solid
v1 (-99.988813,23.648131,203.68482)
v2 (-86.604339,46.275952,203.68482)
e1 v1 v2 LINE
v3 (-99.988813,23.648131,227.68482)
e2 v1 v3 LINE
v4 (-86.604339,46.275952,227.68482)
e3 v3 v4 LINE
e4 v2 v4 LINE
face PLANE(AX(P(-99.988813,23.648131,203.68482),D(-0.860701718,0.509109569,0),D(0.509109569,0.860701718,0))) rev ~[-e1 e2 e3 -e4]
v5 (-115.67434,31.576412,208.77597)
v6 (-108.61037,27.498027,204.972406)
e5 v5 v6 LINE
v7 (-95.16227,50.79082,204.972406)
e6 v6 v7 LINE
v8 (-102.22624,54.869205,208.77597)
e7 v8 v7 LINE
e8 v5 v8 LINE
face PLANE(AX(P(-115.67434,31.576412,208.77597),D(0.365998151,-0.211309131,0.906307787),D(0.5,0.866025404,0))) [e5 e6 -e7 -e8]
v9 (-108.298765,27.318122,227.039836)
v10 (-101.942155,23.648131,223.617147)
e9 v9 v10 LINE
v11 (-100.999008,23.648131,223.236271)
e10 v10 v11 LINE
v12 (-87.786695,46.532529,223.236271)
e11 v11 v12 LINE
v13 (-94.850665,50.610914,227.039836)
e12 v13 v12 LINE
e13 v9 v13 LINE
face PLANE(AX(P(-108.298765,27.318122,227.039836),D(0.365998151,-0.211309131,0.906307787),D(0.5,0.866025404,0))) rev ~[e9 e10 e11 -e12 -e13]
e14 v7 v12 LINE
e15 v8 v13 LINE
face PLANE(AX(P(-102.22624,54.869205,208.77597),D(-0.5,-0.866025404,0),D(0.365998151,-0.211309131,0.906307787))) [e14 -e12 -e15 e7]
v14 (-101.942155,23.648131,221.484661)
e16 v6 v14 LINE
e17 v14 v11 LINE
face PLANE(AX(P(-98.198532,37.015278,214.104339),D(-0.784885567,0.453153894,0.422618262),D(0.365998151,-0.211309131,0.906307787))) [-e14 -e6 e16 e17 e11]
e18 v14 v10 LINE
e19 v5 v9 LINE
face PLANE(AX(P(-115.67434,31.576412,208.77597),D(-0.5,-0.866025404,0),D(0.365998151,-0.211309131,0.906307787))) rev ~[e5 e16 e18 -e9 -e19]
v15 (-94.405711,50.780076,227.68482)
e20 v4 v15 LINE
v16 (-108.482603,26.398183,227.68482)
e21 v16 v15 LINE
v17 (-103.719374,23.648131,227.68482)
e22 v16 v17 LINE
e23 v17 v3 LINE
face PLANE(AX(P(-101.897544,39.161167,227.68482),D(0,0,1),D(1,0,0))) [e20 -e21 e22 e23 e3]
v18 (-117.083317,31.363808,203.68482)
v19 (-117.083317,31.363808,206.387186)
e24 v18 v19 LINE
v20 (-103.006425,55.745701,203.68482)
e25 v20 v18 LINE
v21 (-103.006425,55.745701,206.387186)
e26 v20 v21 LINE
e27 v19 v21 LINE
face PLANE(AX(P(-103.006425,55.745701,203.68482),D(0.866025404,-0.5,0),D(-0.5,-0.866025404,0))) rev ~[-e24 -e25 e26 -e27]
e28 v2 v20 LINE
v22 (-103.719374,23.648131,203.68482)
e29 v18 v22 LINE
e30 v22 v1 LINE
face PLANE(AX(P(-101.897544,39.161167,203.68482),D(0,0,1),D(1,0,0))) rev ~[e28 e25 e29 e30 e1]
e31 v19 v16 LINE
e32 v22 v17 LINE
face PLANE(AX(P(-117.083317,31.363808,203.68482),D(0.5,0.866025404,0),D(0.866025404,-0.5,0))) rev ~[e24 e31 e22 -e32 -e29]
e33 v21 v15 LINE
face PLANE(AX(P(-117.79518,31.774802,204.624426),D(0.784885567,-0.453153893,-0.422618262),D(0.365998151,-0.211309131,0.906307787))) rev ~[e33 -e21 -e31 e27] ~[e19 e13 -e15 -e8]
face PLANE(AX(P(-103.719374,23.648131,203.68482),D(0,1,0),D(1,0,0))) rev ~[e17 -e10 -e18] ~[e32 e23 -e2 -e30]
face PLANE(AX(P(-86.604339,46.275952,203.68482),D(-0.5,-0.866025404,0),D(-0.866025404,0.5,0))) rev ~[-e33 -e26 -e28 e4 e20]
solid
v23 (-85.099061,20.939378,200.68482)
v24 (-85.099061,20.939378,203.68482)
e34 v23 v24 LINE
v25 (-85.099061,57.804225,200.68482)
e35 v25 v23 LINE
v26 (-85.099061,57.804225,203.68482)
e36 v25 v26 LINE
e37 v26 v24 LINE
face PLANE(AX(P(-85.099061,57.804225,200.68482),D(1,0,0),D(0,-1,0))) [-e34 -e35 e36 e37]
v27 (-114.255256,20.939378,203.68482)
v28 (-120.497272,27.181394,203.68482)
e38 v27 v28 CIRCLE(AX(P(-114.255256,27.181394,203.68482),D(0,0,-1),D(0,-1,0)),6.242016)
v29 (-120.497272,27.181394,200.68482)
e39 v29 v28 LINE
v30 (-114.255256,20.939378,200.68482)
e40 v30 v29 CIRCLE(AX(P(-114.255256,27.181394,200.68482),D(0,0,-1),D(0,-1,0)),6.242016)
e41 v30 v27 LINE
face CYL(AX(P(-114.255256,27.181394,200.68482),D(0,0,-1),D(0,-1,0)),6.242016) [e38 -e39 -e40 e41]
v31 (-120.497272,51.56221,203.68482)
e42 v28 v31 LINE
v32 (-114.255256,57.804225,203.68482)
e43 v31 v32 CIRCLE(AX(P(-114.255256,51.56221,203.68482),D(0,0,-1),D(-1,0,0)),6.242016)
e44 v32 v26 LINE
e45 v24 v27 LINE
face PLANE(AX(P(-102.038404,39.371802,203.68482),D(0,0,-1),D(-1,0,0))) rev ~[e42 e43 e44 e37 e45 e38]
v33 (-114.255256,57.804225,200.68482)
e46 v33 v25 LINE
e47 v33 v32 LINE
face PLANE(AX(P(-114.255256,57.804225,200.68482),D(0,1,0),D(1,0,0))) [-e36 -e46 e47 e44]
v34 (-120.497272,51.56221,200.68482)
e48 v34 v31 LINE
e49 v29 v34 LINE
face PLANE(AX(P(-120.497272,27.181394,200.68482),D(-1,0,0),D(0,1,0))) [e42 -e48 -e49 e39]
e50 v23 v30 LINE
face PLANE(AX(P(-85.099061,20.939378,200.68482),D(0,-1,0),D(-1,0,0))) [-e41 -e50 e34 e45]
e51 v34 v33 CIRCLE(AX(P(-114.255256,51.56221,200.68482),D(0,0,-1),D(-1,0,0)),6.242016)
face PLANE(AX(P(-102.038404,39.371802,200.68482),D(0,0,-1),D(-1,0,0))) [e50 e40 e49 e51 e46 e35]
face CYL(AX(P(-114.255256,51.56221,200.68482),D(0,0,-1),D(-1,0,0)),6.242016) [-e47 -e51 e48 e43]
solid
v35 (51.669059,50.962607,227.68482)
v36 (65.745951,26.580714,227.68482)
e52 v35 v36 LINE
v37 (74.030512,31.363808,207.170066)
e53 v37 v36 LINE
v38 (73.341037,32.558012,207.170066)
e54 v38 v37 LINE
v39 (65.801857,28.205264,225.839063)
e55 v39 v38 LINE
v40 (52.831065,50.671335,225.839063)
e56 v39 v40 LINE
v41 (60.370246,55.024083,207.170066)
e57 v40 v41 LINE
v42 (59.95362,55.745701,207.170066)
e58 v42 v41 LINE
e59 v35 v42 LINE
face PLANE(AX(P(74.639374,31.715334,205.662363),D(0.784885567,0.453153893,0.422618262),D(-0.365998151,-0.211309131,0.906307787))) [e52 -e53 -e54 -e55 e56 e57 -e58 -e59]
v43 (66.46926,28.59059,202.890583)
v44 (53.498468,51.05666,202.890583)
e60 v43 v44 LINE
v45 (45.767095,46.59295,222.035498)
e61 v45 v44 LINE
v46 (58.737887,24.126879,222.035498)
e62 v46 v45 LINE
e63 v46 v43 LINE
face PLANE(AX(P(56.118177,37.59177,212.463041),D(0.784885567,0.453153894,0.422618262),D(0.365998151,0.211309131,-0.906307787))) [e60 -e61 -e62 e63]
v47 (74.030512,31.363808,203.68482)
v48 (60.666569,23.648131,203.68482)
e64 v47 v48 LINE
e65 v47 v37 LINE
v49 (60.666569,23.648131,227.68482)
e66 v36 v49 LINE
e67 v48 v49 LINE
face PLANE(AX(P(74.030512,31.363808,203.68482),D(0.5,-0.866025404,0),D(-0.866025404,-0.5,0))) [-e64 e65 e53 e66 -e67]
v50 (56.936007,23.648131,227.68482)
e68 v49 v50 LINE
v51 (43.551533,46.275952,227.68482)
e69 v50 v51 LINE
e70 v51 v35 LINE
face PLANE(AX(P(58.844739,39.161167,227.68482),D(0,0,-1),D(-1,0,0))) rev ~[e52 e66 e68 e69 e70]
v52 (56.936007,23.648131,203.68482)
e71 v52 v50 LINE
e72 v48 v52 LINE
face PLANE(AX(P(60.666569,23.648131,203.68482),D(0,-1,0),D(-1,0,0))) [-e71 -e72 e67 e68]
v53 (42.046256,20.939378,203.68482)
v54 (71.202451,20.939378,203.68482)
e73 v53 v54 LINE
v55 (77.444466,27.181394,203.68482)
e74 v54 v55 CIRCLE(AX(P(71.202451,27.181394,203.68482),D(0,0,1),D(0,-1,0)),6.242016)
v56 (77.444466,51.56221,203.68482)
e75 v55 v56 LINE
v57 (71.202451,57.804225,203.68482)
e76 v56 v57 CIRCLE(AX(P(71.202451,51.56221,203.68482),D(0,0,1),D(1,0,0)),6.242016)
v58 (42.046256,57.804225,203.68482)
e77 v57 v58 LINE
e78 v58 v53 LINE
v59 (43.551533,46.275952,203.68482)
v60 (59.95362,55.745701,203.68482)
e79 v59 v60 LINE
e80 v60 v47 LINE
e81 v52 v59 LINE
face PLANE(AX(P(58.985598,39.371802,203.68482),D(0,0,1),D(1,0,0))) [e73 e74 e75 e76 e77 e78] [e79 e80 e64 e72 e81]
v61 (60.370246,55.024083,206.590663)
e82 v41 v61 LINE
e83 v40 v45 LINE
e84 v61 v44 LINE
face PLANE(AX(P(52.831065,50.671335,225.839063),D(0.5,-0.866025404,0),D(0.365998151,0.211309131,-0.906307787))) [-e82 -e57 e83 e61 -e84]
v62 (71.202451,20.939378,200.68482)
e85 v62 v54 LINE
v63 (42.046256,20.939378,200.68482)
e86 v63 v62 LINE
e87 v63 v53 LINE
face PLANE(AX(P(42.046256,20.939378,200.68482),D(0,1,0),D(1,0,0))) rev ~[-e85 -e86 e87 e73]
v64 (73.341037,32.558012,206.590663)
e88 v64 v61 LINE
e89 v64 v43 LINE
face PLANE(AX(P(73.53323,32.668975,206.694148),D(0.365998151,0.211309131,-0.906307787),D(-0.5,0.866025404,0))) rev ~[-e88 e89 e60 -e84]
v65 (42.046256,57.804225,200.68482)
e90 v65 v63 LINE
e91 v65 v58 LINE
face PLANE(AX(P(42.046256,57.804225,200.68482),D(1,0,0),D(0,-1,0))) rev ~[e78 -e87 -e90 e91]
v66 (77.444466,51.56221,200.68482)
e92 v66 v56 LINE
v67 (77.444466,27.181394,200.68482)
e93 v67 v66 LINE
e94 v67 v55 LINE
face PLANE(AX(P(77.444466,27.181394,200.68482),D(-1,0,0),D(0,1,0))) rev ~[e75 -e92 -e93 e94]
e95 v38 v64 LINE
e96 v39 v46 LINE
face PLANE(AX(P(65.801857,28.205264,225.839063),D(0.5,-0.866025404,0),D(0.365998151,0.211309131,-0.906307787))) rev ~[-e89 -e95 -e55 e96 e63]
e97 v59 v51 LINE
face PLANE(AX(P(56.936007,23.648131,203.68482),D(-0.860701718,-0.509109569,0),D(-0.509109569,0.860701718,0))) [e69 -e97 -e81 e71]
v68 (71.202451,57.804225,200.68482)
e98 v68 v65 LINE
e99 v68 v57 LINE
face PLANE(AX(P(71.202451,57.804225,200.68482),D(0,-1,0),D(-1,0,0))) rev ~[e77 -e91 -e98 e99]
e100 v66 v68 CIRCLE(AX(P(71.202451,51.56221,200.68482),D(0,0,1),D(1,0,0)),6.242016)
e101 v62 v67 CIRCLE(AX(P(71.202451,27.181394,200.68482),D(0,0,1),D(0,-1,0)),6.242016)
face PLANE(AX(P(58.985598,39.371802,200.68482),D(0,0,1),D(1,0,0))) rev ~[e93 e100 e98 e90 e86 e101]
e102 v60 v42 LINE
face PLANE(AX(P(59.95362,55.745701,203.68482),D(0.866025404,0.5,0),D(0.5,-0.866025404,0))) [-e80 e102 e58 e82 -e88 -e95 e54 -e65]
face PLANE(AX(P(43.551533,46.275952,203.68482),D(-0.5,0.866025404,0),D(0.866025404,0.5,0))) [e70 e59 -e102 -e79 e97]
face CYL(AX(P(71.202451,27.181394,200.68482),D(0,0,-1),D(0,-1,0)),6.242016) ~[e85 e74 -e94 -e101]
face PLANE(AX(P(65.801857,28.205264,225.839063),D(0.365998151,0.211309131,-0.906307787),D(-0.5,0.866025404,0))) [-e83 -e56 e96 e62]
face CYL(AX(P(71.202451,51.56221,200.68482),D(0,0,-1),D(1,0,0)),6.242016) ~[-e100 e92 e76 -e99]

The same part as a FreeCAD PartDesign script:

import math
import FreeCAD as App
import Part
import Sketcher
from FreeCAD import Vector
Q = App.Units.Quantity

doc = App.newDocument("Part")
body = doc.addObject("PartDesign::Body", "Body")
body.AllowCompound = True

sketch1 = doc.addObject("Sketcher::SketchObject", "Sketch")
body.addObject(sketch1)
sketch1.AttachmentSupport = (doc.XY_Plane, [""])
sketch1.MapMode = "FlatFace"
sketch1.AttachmentOffset = App.Placement(Vector(0, 0, 200.68482), App.Rotation())
sketch1.addGeometry([
    Part.LineSegment(Vector(42, 21, 0), Vector(71, 21, 0)),
    Part.ArcOfCircle(Part.Circle(Vector(71, 27, 0), Vector(0, 0, 1), 6), math.radians(-90), math.radians(0)),
    Part.LineSegment(Vector(77, 27, 0), Vector(77, 52, 0)),
    Part.ArcOfCircle(Part.Circle(Vector(71, 52, 0), Vector(0, 0, 1), 6), math.radians(0), math.radians(90)),
    Part.LineSegment(Vector(71, 58, 0), Vector(42, 58, 0)),
    Part.LineSegment(Vector(42, 58, 0), Vector(42, 21, 0)),
], False)
sketch1.addConstraint([
    Sketcher.Constraint("Tangent", 0, 2, 1, 1),
    Sketcher.Constraint("Tangent", 1, 2, 2, 1),
    Sketcher.Constraint("Tangent", 2, 2, 3, 1),
    Sketcher.Constraint("Tangent", 3, 2, 4, 1),
    Sketcher.Constraint("Coincident", 4, 2, 5, 1),
    Sketcher.Constraint("Coincident", 5, 2, 0, 1),
    Sketcher.Constraint("Horizontal", 0),
    Sketcher.Constraint("Vertical", 2),
    Sketcher.Constraint("Horizontal", 4),
    Sketcher.Constraint("Vertical", 5),
    Sketcher.Constraint("Equal", 1, 3),
    Sketcher.Constraint("Radius", 1, 6.242016),
    Sketcher.Constraint("DistanceX", 0, 1, 0, 2, 29.156195),
    Sketcher.Constraint("DistanceY", 2, 1, 2, 2, 24.380815),
    Sketcher.Constraint("DistanceX", -1, 1, 1, 3, 71.202451),
    Sketcher.Constraint("DistanceY", -1, 1, 3, 3, 51.56221),
])
pad1 = doc.addObject("PartDesign::Pad", "Pad")
body.addObject(pad1)
pad1.Profile = sketch1
pad1.Length = 3

sketch2 = doc.addObject("Sketcher::SketchObject", "Sketch001")
body.addObject(sketch2)
sketch2.AttachmentSupport = (doc.XY_Plane, [""])
sketch2.MapMode = "FlatFace"
sketch2.AttachmentOffset = App.Placement(Vector(0, 0, 203.68482), App.Rotation())
sketch2.addGeometry([
    Part.LineSegment(Vector(74, 31.4, 0), Vector(60, 55.7, 0)),
    Part.LineSegment(Vector(60, 55.7, 0), Vector(43.6, 46.3, 0)),
    Part.LineSegment(Vector(43.6, 46.3, 0), Vector(56.9, 23.6, 0)),
    Part.LineSegment(Vector(56.9, 23.6, 0), Vector(60.7, 23.6, 0)),
    Part.LineSegment(Vector(60.7, 23.6, 0), Vector(74, 31.4, 0)),
    Part.LineSegment(Vector(-103, 55.7, 0), Vector(-117.1, 31.4, 0)),
    Part.LineSegment(Vector(-117.1, 31.4, 0), Vector(-103.7, 23.6, 0)),
    Part.LineSegment(Vector(-103.7, 23.6, 0), Vector(-100, 23.6, 0)),
    Part.LineSegment(Vector(-100, 23.6, 0), Vector(-86.6, 46.3, 0)),
    Part.LineSegment(Vector(-86.6, 46.3, 0), Vector(-103, 55.7, 0)),
], False)
sketch2.addConstraint([
    Sketcher.Constraint("Coincident", 0, 2, 1, 1),
    Sketcher.Constraint("Coincident", 1, 2, 2, 1),
    Sketcher.Constraint("Coincident", 2, 2, 3, 1),
    Sketcher.Constraint("Coincident", 3, 2, 4, 1),
    Sketcher.Constraint("Coincident", 4, 2, 0, 1),
    Sketcher.Constraint("Coincident", 5, 2, 6, 1),
    Sketcher.Constraint("Coincident", 6, 2, 7, 1),
    Sketcher.Constraint("Coincident", 7, 2, 8, 1),
    Sketcher.Constraint("Coincident", 8, 2, 9, 1),
    Sketcher.Constraint("Coincident", 9, 2, 5, 1),
    Sketcher.Constraint("Horizontal", 3),
    Sketcher.Constraint("Horizontal", 7),
    Sketcher.Constraint("Perpendicular", 0, 1),
    Sketcher.Constraint("Parallel", 1, 4),
    Sketcher.Constraint("Perpendicular", 5, 6),
    Sketcher.Constraint("Parallel", 6, 9),
    Sketcher.Constraint("Horizontal", 4, 2, 5, 2),
    Sketcher.Constraint("Horizontal", 3, 2, 6, 2),
    Sketcher.Constraint("Horizontal", 1, 2, 8, 2),
    Sketcher.Constraint("Horizontal", 0, 2, 9, 2),
    Sketcher.Constraint("Equal", 3, 7),
    Sketcher.Constraint("Equal", 0, 5),
    Sketcher.Constraint("Angle", 0, Q("120 deg")),
    Sketcher.Constraint("DistanceX", 3, 1, 3, 2, 3.730561),
    Sketcher.Constraint("DistanceY", -1, 1, 0, 2, 55.745701),
    Sketcher.Constraint("DistanceX", -1, 1, 0, 2, 59.95362),
    Sketcher.Constraint("DistanceY", -1, 1, 1, 2, 46.275952),
    Sketcher.Constraint("DistanceY", -1, 1, 2, 2, 23.648131),
    Sketcher.Constraint("DistanceX", -1, 1, 3, 2, 60.666569),
    Sketcher.Constraint("DistanceX", 8, 2, -1, 1, 86.604339),
])
pad2 = doc.addObject("PartDesign::Pad", "Pad001")
body.addObject(pad2)
pad2.Profile = sketch2
pad2.Length = 24

sketch3 = doc.addObject("Sketcher::SketchObject", "Sketch002")
body.addObject(sketch3)
sketch3.Placement = App.Placement(Vector(4.926701, -8.533296, 0), App.Rotation(Vector(-0.866025404, -0.5, 0), Vector(0, 0, -1), Vector(0.5, -0.866025404, 0), "ZXY"))
sketch3.addGeometry([
    Part.LineSegment(Vector(-69, -230, 0), Vector(-80, -206, 0)),
    Part.LineSegment(Vector(-80, -206, 0), Vector(-80, -230, 0)),
    Part.LineSegment(Vector(-80, -230, 0), Vector(-69, -230, 0)),
], False)
sketch3.addConstraint([
    Sketcher.Constraint("Coincident", 0, 2, 1, 1),
    Sketcher.Constraint("Coincident", 1, 2, 2, 1),
    Sketcher.Constraint("Coincident", 2, 2, 0, 1),
    Sketcher.Constraint("Vertical", 1),
    Sketcher.Constraint("Horizontal", 2),
    Sketcher.Constraint("Angle", 0, Q("115 deg")),
    Sketcher.Constraint("DistanceX", 2, 1, 2, 2, 11.480384),
    Sketcher.Constraint("DistanceX", 0, 2, -1, 1, 80.497261),
    Sketcher.Constraint("DistanceY", 0, 2, -1, 1, 205.662363),
])
pocket1 = doc.addObject("PartDesign::Pocket", "Pocket")
body.addObject(pocket1)
pocket1.Profile = sketch3
pocket1.Type = "ThroughAll"

sketch4 = doc.addObject("Sketcher::SketchObject", "Sketch003")
body.addObject(sketch4)
sketch4.Placement = App.Placement(Vector(-15.689902, -27.175708, 0), App.Rotation(Vector(0.866025404, -0.5, 0), Vector(0, 0, 1), Vector(-0.5, -0.866025404, 0), "ZXY"))
sketch4.addGeometry([
    Part.LineSegment(Vector(-118, 205, 0), Vector(-105, 233, 0)),
    Part.LineSegment(Vector(-105, 233, 0), Vector(-118, 233, 0)),
    Part.LineSegment(Vector(-118, 233, 0), Vector(-118, 205, 0)),
], False)
sketch4.addConstraint([
    Sketcher.Constraint("Coincident", 0, 2, 1, 1),
    Sketcher.Constraint("Coincident", 1, 2, 2, 1),
    Sketcher.Constraint("Coincident", 2, 2, 0, 1),
    Sketcher.Constraint("Horizontal", 1),
    Sketcher.Constraint("Vertical", 2),
    Sketcher.Constraint("Angle", 0, Q("65 deg")),
    Sketcher.Constraint("DistanceX", 1, 2, 1, 1, 13.21744),
    Sketcher.Constraint("DistanceX", 0, 2, -1, 1, 104.683579),
    Sketcher.Constraint("DistanceY", -1, 1, 0, 2, 232.969319),
])
pocket2 = doc.addObject("PartDesign::Pocket", "Pocket001")
body.addObject(pocket2)
pocket2.Profile = sketch4
pocket2.Length = 54

sketch5 = doc.addObject("Sketcher::SketchObject", "Sketch004")
body.addObject(sketch5)
sketch5.Placement = App.Placement(Vector(-151.743992, 87.609435, 81.705901), App.Rotation(Vector(0.365998151, -0.211309131, 0.906307787), Vector(0.500000001, 0.866025404, 0), Vector(-0.784885567, 0.453153894, 0.422618262), "ZXY"))
sketch5.addGeometry([
    Part.LineSegment(Vector(140, -4, 0), Vector(140, -30, 0)),
    Part.LineSegment(Vector(140, -30, 0), Vector(160, -30, 0)),
    Part.LineSegment(Vector(160, -30, 0), Vector(160, -4, 0)),
    Part.LineSegment(Vector(160, -4, 0), Vector(140, -4, 0)),
], False)
sketch5.addConstraint([
    Sketcher.Constraint("Coincident", 0, 2, 1, 1),
    Sketcher.Constraint("Coincident", 1, 2, 2, 1),
    Sketcher.Constraint("Coincident", 2, 2, 3, 1),
    Sketcher.Constraint("Coincident", 3, 2, 0, 1),
    Sketcher.Constraint("Vertical", 0),
    Sketcher.Constraint("Horizontal", 1),
    Sketcher.Constraint("Vertical", 2),
    Sketcher.Constraint("Horizontal", 3),
    Sketcher.Constraint("DistanceY", 0, 2, 0, 1, 26.8962),
    Sketcher.Constraint("DistanceX", 1, 1, 1, 2, 20.151946),
    Sketcher.Constraint("DistanceX", -1, 1, 0, 2, 140.206309),
    Sketcher.Constraint("DistanceY", 0, 2, -1, 1, 30.491195),
])
pocket3 = doc.addObject("PartDesign::Pocket", "Pocket002")
body.addObject(pocket3)
pocket3.Profile = sketch5
pocket3.Length = 9

sketch6 = doc.addObject("Sketcher::SketchObject", "Sketch005")
body.addObject(sketch6)
sketch6.Placement = App.Placement(Vector(125.481198, 72.446603, 67.564812), App.Rotation(Vector(0.365998151, 0.211309131, -0.906307787), Vector(-0.500000001, 0.866025404, 0), Vector(0.784885567, 0.453153894, 0.422618262), "ZXY"))
sketch6.addGeometry([
    Part.LineSegment(Vector(-175, 17, 0), Vector(-175, -8, 0)),
    Part.LineSegment(Vector(-175, -8, 0), Vector(-154, -8, 0)),
    Part.LineSegment(Vector(-154, -8, 0), Vector(-154, 17, 0)),
    Part.LineSegment(Vector(-154, 17, 0), Vector(-175, 17, 0)),
], False)
sketch6.addConstraint([
    Sketcher.Constraint("Coincident", 0, 2, 1, 1),
    Sketcher.Constraint("Coincident", 1, 2, 2, 1),
    Sketcher.Constraint("Coincident", 2, 2, 3, 1),
    Sketcher.Constraint("Coincident", 3, 2, 0, 1),
    Sketcher.Constraint("Vertical", 0),
    Sketcher.Constraint("Horizontal", 1),
    Sketcher.Constraint("Vertical", 2),
    Sketcher.Constraint("Horizontal", 3),
    Sketcher.Constraint("DistanceX", 1, 1, 1, 2, 21.124077),
    Sketcher.Constraint("DistanceY", 0, 2, 0, 1, 25.941584),
    Sketcher.Constraint("DistanceY", -1, 1, 2, 2, 17.467131),
    Sketcher.Constraint("DistanceX", 0, 2, -1, 1, 174.636314),
])
pocket4 = doc.addObject("PartDesign::Pocket", "Pocket003")
body.addObject(pocket4)
pocket4.Profile = sketch6
pocket4.Length = 9
body2 = doc.addObject("PartDesign::Body", "Body001")

sketch7 = doc.addObject("Sketcher::SketchObject", "Sketch006")
body2.addObject(sketch7)
sketch7.AttachmentSupport = (doc.getObject("XY_Plane001"), [""])
sketch7.MapMode = "FlatFace"
sketch7.AttachmentOffset = App.Placement(Vector(0, 0, 200.68482), App.Rotation())
sketch7.addGeometry([
    Part.LineSegment(Vector(-85, 21, 0), Vector(-85, 58, 0)),
    Part.LineSegment(Vector(-85, 58, 0), Vector(-114, 58, 0)),
    Part.ArcOfCircle(Part.Circle(Vector(-114, 52, 0), Vector(0, 0, 1), 6), math.radians(90), math.radians(180)),
    Part.LineSegment(Vector(-120, 52, 0), Vector(-120, 27, 0)),
    Part.ArcOfCircle(Part.Circle(Vector(-114, 27, 0), Vector(0, 0, 1), 6), math.radians(180), math.radians(270)),
    Part.LineSegment(Vector(-114, 21, 0), Vector(-85, 21, 0)),
], False)
sketch7.addConstraint([
    Sketcher.Constraint("Coincident", 0, 2, 1, 1),
    Sketcher.Constraint("Tangent", 1, 2, 2, 1),
    Sketcher.Constraint("Tangent", 2, 2, 3, 1),
    Sketcher.Constraint("Tangent", 3, 2, 4, 1),
    Sketcher.Constraint("Tangent", 4, 2, 5, 1),
    Sketcher.Constraint("Coincident", 5, 2, 0, 1),
    Sketcher.Constraint("Vertical", 0),
    Sketcher.Constraint("Horizontal", 1),
    Sketcher.Constraint("Vertical", 3),
    Sketcher.Constraint("Horizontal", 5),
    Sketcher.Constraint("Equal", 2, 4),
    Sketcher.Constraint("Radius", 2, 6.242016),
    Sketcher.Constraint("DistanceX", 1, 2, 1, 1, 29.156195),
    Sketcher.Constraint("DistanceY", 0, 1, 0, 2, 36.864847),
    Sketcher.Constraint("DistanceY", -1, 1, 2, 3, 51.56221),
    Sketcher.Constraint("DistanceX", 0, 2, -1, 1, 85.099061),
])
pad3 = doc.addObject("PartDesign::Pad", "Pad002")
body2.addObject(pad3)
pad3.Profile = sketch7
pad3.Length = 3

doc.recompute()
